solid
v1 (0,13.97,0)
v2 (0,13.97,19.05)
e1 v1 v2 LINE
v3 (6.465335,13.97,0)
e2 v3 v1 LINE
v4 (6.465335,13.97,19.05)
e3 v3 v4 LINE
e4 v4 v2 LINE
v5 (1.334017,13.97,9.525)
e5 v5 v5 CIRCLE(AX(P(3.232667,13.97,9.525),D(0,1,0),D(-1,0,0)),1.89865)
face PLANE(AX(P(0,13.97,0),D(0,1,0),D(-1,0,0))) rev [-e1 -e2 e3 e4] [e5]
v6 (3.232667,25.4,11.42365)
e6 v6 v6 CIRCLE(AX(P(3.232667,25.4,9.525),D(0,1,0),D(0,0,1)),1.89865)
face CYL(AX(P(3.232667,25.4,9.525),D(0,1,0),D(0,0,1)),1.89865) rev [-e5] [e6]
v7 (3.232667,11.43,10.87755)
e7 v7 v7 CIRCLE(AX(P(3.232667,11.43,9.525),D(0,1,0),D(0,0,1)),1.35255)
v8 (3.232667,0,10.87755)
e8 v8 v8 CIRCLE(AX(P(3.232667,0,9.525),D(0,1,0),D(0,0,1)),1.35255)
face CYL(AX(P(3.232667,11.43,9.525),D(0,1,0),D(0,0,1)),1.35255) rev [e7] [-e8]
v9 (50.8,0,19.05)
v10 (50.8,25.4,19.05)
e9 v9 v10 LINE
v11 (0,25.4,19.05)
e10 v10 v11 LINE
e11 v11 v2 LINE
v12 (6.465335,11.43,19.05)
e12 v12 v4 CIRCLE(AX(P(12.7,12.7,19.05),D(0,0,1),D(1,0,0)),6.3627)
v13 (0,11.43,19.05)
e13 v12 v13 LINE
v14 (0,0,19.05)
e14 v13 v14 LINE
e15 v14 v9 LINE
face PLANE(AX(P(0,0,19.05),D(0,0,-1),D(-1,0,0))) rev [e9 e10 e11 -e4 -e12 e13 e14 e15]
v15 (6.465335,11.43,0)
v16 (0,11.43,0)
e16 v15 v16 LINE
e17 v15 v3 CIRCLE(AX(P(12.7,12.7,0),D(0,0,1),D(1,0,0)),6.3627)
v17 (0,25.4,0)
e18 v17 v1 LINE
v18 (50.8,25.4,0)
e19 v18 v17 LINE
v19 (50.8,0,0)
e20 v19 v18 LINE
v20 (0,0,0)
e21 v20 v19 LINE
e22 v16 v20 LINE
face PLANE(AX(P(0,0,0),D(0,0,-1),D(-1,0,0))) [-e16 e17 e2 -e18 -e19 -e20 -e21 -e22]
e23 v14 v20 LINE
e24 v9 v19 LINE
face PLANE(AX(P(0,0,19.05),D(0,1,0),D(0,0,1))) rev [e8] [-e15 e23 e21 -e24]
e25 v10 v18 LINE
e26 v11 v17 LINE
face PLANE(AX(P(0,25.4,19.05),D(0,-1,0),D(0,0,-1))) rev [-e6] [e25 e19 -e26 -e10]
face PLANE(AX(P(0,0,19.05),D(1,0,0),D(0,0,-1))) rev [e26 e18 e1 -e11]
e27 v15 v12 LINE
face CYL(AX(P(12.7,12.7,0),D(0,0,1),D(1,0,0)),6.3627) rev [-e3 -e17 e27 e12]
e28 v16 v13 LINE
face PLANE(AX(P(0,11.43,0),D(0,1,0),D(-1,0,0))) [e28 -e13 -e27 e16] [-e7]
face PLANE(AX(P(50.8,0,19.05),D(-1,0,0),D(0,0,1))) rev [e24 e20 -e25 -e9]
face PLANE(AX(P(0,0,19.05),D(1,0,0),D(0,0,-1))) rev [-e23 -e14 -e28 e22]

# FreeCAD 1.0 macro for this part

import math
import FreeCAD as App
import Part
import Sketcher
Q = App.Units.Quantity


def add_polygon(sketch, points):
    """Adds a closed chain of lines whose ends are joined by coincident constraints."""
    first, n = sketch.GeometryCount, len(points)
    for a, b in zip(points, points[1:] + points[:1]):
        sketch.addGeometry(Part.LineSegment(App.Vector(*a, 0), App.Vector(*b, 0)), False)
    for i in range(n):
        sketch.addConstraint(Sketcher.Constraint("Coincident", first + i, 2, first + (i + 1) % n, 1))

doc = App.newDocument("Part")
body = doc.addObject("PartDesign::Body", "Body")

sketch1 = doc.addObject("Sketcher::SketchObject", "Sketch")
body.addObject(sketch1)
sketch1.AttachmentSupport = (doc.XY_Plane, [""])
sketch1.MapMode = "FlatFace"
add_polygon(sketch1, [(0, 25), (0, 0), (51, 0), (51, 25)])
sketch1.addConstraint([
    Sketcher.Constraint("Vertical", 0),
    Sketcher.Constraint("Horizontal", 1),
    Sketcher.Constraint("Vertical", 2),
    Sketcher.Constraint("Horizontal", 3),
    Sketcher.Constraint("Coincident", 0, 2, -1, 1),
    Sketcher.Constraint("DistanceX", 1, 1, 1, 2, Q("2 in")),
    Sketcher.Constraint("DistanceY", 0, 2, 0, 1, Q("1 in")),
])
pad1 = doc.addObject("PartDesign::Pad", "Pad")
body.addObject(pad1)
pad1.Profile = sketch1
pad1.Length = Q("0.75 in")

sketch2 = doc.addObject("Sketcher::SketchObject", "Sketch001")
body.addObject(sketch2)
sketch2.AttachmentSupport = (doc.XY_Plane, [""])
sketch2.MapMode = "FlatFace"
sketch2.AttachmentOffset = App.Placement(App.Vector(0, 0, 0.75 * 25.4), App.Rotation())
sketch2.addGeometry([
    Part.ArcOfCircle(Part.Circle(App.Vector(12.7, 12.7, 0), App.Vector(0, 0, 1), 6.4), math.radians(-168), math.radians(0)),
    Part.ArcOfCircle(Part.Circle(App.Vector(12.7, 12.7, 0), App.Vector(0, 0, 1), 6.4), math.radians(0), math.radians(168)),
    Part.LineSegment(App.Vector(6.5, 14, 0), App.Vector(0, 14, 0)),
    Part.LineSegment(App.Vector(0, 14, 0), App.Vector(0, 11.4, 0)),
    Part.LineSegment(App.Vector(0, 11.4, 0), App.Vector(6.5, 11.4, 0)),
], False)
sketch2.addConstraint([
    Sketcher.Constraint("Tangent", 0, 2, 1, 1),
    Sketcher.Constraint("Coincident", 1, 2, 2, 1),
    Sketcher.Constraint("Coincident", 2, 2, 3, 1),
    Sketcher.Constraint("Coincident", 3, 2, 4, 1),
    Sketcher.Constraint("Coincident", 4, 2, 0, 1),
    Sketcher.Constraint("Horizontal", 2),
    Sketcher.Constraint("Vertical", 3),
    Sketcher.Constraint("Horizontal", 4),
    Sketcher.Constraint("Equal", 0, 1),
    Sketcher.Constraint("PointOnObject", 2, 2, -2),
    Sketcher.Constraint("Horizontal", 1, 3, 0, 2),
    Sketcher.Constraint("Vertical", 1, 2, 4, 2),
    Sketcher.Constraint("DistanceY", 3, 2, 3, 1, Q("0.1 in")),
    Sketcher.Constraint("DistanceX", -1, 1, 0, 3, Q("0.5 in")),
    Sketcher.Constraint("DistanceY", -1, 1, 0, 3, Q("0.5 in")),
    Sketcher.Constraint("Radius", 0, Q("0.2505 in")),
])
pocket1 = doc.addObject("PartDesign::Pocket", "Pocket")
body.addObject(pocket1)
pocket1.Profile = sketch2
pocket1.Length = Q("0.75 in")

sketch3 = doc.addObject("Sketcher::SketchObject", "Sketch002")
body.addObject(sketch3)
sketch3.AttachmentSupport = (doc.XZ_Plane, [""])
sketch3.MapMode = "FlatFace"
sketch3.AttachmentOffset = App.Placement(App.Vector(0, 0, -1 * 25.4), App.Rotation())
sketch3.addGeometry(Part.Circle(App.Vector(3.2, 9.5, 0), App.Vector(0, 0, 1), 1.9), False)
sketch3.addConstraint([
    Sketcher.Constraint("Diameter", 0, Q("0.1495 in")),
    Sketcher.Constraint("DistanceY", -1, 1, 0, 3, Q("0.375 in")),
    Sketcher.Constraint("DistanceX", -1, 1, 0, 3, 3.232667),
])
doc.recompute()
hole = doc.addObject("PartDesign::Hole", "Hole")
body.addObject(hole)
hole.Profile = sketch3
hole.ThreadType = "None"
hole.Diameter = Q("0.1495 in")
hole.DepthType = "Dimension"
hole.Depth = Q("0.45 in")
hole.DrillPoint = "Flat"
hole.Reversed = True

sketch4 = doc.addObject("Sketcher::SketchObject", "Sketch003")
body.addObject(sketch4)
sketch4.AttachmentSupport = (doc.XZ_Plane, [""])
sketch4.MapMode = "FlatFace"
sketch4.AttachmentOffset = App.Placement(App.Vector(0, 0, -0.45 * 25.4), App.Rotation())
sketch4.addGeometry(Part.Circle(App.Vector(3.2, 9.5, 0), App.Vector(0, 0, 1), 1.4), False)
sketch4.addConstraint([
    Sketcher.Constraint("Diameter", 0, Q("0.1065 in")),
    Sketcher.Constraint("DistanceY", -1, 1, 0, 3, Q("0.375 in")),
    Sketcher.Constraint("DistanceX", -1, 1, 0, 3, 3.232667),
])
doc.recompute()
hole2 = doc.addObject("PartDesign::Hole", "Hole001")
body.addObject(hole2)
hole2.Profile = sketch4
hole2.ThreadType = "None"
hole2.Diameter = Q("0.1065 in")
hole2.DepthType = "ThroughAll"
hole2.Reversed = True

doc.recompute()
